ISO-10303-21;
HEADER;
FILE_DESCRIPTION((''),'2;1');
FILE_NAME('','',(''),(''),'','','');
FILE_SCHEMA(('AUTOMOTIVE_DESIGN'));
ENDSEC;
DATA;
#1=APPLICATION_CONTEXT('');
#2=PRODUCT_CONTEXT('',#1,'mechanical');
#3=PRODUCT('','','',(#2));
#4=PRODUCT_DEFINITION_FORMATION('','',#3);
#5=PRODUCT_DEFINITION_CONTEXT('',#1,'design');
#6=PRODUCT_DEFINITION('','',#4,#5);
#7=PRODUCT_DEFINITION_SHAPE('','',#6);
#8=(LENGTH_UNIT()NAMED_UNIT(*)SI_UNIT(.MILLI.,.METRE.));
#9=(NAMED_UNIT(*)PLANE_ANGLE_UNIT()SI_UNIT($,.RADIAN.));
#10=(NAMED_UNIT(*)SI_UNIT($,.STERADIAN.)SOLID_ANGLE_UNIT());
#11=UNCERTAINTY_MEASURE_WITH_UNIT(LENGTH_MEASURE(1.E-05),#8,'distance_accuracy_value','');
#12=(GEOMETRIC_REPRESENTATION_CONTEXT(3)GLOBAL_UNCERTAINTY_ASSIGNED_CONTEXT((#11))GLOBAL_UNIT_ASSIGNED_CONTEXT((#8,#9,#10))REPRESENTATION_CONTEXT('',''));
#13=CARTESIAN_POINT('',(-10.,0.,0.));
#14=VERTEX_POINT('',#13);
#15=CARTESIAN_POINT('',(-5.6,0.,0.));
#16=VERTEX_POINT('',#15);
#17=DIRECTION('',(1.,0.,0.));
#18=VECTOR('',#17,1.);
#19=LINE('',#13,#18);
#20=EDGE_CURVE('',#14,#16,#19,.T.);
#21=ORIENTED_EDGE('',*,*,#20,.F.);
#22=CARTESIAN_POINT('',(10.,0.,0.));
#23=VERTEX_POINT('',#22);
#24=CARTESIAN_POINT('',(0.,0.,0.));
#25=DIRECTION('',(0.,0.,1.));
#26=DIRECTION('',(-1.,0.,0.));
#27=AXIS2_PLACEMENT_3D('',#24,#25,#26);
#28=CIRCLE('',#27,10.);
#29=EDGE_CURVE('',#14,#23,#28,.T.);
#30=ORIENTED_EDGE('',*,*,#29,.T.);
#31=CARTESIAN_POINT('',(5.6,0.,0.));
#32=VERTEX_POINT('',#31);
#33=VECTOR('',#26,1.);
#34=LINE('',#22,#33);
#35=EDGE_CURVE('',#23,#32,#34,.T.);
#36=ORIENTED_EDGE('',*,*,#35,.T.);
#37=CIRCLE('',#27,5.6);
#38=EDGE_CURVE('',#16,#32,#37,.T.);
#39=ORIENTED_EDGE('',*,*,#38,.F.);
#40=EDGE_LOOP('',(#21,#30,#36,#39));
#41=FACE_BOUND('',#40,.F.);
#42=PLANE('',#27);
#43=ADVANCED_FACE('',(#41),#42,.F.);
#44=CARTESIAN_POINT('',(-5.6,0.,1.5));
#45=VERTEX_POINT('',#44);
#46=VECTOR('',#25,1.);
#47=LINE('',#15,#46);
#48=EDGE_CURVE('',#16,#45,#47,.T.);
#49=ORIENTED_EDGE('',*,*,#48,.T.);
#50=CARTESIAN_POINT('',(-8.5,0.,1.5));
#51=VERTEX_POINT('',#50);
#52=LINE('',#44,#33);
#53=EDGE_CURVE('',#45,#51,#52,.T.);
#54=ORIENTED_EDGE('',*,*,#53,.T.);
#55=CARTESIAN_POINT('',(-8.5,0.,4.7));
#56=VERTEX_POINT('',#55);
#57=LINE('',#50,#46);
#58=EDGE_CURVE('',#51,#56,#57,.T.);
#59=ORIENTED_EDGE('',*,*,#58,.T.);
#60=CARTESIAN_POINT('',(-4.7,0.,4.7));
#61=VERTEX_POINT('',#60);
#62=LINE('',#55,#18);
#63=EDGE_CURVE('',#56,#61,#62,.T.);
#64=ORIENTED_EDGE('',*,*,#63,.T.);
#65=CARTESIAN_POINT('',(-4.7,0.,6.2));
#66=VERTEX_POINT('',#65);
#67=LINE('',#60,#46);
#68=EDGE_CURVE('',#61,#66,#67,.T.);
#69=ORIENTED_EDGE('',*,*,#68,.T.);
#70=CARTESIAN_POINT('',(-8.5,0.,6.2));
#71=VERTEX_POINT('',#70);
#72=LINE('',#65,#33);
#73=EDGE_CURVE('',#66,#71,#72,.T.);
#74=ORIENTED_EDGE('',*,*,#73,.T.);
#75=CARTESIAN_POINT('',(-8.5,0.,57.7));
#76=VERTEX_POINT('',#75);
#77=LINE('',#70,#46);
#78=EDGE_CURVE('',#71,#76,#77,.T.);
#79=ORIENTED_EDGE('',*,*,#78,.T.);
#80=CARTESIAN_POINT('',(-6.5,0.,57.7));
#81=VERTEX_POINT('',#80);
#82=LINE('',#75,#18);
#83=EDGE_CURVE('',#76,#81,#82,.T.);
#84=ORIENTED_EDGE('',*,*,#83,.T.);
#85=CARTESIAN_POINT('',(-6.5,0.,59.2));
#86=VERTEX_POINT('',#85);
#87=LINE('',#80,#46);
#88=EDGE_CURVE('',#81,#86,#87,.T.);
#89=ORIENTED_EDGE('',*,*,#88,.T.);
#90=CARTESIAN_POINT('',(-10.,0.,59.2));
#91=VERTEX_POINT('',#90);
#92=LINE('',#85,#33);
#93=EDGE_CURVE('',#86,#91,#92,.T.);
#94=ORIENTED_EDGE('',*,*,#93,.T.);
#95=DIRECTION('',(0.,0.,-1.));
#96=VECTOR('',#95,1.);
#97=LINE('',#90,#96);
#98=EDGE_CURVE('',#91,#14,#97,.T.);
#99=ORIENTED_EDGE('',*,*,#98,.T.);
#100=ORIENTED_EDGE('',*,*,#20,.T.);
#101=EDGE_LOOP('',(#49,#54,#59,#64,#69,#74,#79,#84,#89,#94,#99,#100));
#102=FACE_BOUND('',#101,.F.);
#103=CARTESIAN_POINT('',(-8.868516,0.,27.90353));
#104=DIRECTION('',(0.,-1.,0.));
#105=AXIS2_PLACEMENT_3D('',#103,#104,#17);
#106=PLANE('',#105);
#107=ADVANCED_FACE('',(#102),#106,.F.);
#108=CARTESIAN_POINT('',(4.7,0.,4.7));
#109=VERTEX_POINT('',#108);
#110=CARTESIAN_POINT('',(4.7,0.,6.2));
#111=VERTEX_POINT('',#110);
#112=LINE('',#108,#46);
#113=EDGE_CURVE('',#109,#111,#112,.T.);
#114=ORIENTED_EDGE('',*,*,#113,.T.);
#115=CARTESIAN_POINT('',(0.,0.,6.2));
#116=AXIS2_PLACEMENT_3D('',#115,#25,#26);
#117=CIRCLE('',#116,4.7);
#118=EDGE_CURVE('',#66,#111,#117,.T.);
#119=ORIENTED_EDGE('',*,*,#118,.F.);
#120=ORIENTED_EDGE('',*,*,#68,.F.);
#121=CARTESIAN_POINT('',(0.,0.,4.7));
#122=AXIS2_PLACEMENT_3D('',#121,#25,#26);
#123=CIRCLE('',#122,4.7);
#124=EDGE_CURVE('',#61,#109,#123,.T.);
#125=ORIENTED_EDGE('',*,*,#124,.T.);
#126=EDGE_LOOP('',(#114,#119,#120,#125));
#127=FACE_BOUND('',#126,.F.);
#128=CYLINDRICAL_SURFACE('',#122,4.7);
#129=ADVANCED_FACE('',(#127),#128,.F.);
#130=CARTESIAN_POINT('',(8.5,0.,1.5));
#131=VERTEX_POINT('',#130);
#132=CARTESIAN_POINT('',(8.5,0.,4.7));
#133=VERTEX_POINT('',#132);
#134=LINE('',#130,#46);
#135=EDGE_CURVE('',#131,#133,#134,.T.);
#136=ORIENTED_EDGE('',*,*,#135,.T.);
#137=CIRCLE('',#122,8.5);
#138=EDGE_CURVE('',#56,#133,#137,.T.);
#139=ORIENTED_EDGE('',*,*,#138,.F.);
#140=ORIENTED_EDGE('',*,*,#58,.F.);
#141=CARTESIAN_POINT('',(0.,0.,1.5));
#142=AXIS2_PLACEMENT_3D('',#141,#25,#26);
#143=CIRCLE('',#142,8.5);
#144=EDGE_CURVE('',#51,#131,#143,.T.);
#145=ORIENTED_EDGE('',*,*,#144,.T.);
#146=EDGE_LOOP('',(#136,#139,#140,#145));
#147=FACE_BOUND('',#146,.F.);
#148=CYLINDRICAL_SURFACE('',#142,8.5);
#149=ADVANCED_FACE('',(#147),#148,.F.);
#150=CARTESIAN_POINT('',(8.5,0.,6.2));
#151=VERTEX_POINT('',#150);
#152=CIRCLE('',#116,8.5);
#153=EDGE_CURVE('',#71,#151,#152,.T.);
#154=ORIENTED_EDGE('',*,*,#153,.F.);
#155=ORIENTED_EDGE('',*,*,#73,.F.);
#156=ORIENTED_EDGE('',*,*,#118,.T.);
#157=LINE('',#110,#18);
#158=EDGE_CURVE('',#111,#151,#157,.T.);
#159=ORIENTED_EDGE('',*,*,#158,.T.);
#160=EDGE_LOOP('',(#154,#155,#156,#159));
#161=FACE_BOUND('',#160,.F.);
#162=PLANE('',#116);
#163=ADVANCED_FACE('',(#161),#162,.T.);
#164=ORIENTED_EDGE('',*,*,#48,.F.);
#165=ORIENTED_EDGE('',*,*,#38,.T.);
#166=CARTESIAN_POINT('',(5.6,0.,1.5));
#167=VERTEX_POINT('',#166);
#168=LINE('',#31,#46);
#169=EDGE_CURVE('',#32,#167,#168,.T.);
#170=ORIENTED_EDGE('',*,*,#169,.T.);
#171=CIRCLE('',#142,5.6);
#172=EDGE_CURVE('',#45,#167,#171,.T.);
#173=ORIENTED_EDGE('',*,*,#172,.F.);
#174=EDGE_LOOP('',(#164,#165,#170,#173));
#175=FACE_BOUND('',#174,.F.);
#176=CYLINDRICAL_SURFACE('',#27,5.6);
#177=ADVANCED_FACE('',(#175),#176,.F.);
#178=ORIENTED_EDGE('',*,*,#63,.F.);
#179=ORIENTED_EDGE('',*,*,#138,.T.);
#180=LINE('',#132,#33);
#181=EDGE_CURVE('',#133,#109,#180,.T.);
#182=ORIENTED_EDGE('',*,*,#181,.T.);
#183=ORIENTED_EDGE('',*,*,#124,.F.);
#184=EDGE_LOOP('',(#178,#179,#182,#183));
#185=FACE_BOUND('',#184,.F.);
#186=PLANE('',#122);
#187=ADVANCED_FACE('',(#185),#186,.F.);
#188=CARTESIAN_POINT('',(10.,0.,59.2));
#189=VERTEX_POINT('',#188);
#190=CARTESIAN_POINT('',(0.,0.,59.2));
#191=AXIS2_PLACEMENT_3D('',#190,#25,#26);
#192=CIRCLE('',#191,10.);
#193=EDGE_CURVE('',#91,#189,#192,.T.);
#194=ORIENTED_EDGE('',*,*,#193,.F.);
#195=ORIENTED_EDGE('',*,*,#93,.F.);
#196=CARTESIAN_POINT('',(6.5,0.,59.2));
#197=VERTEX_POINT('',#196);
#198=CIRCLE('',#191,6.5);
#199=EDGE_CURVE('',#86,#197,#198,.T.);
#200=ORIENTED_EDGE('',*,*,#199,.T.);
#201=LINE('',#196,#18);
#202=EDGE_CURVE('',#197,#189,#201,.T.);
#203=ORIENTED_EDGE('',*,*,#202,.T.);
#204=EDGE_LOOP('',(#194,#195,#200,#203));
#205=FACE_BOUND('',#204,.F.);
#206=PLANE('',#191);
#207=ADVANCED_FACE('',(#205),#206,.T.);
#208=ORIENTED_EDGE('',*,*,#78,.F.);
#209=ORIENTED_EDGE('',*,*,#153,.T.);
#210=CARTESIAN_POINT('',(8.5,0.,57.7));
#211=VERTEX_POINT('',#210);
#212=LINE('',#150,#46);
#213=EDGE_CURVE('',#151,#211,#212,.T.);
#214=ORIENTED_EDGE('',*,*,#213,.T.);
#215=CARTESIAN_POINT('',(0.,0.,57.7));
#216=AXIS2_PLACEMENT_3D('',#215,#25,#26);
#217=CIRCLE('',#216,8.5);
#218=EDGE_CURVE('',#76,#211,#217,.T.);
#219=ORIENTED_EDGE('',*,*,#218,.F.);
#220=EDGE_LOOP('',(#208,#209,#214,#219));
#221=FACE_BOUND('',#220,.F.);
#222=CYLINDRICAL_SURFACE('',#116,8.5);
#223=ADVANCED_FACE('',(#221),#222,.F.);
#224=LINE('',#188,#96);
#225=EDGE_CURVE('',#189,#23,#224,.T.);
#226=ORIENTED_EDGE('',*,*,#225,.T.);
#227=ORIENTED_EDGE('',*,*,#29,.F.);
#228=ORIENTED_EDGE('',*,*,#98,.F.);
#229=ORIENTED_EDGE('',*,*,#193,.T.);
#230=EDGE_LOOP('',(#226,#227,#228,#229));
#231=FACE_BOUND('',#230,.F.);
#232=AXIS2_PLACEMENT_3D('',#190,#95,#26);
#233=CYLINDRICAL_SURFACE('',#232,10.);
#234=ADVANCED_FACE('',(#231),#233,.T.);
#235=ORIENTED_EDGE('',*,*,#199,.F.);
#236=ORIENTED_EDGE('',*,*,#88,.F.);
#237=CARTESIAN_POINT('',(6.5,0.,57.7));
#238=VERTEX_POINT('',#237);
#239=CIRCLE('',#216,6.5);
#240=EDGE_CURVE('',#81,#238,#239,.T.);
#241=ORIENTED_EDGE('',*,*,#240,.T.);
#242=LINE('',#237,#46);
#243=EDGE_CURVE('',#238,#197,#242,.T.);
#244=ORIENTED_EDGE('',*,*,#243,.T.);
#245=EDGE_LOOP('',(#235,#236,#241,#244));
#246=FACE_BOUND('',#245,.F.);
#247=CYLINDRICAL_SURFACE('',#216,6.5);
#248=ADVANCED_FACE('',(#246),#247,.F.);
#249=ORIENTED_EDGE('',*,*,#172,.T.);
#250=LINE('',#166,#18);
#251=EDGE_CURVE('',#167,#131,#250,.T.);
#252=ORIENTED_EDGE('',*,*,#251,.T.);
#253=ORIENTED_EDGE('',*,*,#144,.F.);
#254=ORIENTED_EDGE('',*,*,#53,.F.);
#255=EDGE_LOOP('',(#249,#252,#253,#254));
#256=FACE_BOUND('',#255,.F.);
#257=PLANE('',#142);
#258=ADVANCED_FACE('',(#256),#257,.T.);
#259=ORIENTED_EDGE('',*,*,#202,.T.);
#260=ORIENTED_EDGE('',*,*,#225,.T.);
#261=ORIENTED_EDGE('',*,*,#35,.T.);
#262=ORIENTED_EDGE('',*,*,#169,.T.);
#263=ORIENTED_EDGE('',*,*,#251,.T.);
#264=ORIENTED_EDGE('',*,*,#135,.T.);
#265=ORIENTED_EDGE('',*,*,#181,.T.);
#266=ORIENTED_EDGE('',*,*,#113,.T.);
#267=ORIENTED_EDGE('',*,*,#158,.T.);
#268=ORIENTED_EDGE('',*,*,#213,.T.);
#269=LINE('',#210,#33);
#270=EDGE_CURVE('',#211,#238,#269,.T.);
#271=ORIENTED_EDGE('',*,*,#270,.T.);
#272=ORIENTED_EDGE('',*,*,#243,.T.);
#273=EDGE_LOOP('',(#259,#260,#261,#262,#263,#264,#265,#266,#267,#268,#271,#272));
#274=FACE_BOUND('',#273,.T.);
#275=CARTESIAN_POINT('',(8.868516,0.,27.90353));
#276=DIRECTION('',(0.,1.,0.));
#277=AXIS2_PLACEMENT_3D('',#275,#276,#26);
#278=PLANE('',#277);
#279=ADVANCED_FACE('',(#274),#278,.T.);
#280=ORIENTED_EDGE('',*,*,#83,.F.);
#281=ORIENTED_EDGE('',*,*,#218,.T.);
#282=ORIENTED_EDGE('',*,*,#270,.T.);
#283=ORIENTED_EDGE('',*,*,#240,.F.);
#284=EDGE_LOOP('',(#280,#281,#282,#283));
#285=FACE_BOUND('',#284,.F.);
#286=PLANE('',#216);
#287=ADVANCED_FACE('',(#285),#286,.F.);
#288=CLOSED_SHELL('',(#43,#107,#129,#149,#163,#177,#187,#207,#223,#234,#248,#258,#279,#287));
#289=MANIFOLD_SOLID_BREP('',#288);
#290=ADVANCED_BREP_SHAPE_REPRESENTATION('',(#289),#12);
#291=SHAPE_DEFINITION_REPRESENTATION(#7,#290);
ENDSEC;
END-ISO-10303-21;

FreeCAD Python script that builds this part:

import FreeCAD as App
import Part
import Sketcher

V = App.Vector
Q = App.Units.Quantity

doc = App.newDocument("Part")
body = doc.addObject("PartDesign::Body", "Body")

sketch1 = body.newObject("Sketcher::SketchObject", "Sketch")
sketch1.AttachmentSupport = (doc.getObject("XZ_Plane"), [""])
sketch1.MapMode = "FlatFace"
sketch1.addGeometry(Part.LineSegment(V(-6.5, 57.7, 0), V(-6.5, 59.2, 0)), False)
sketch1.addGeometry(Part.LineSegment(V(-6.5, 59.2, 0), V(-10, 59.2, 0)), False)
sketch1.addGeometry(Part.LineSegment(V(-10, 59.2, 0), V(-10, 0, 0)), False)
sketch1.addGeometry(Part.LineSegment(V(-10, 0, 0), V(-5.6, 0, 0)), False)
sketch1.addGeometry(Part.LineSegment(V(-5.6, 0, 0), V(-5.6, 1.5, 0)), False)
sketch1.addGeometry(Part.LineSegment(V(-5.6, 1.5, 0), V(-8.5, 1.5, 0)), False)
sketch1.addGeometry(Part.LineSegment(V(-8.5, 1.5, 0), V(-8.5, 4.7, 0)), False)
sketch1.addGeometry(Part.LineSegment(V(-8.5, 4.7, 0), V(-4.7, 4.7, 0)), False)
sketch1.addGeometry(Part.LineSegment(V(-4.7, 4.7, 0), V(-4.7, 6.2, 0)), False)
sketch1.addGeometry(Part.LineSegment(V(-4.7, 6.2, 0), V(-8.5, 6.2, 0)), False)
sketch1.addGeometry(Part.LineSegment(V(-8.5, 6.2, 0), V(-8.5, 57.7, 0)), False)
sketch1.addGeometry(Part.LineSegment(V(-8.5, 57.7, 0), V(-6.5, 57.7, 0)), False)
sketch1.addConstraint(Sketcher.Constraint("Coincident", 0, 2, 1, 1))
sketch1.addConstraint(Sketcher.Constraint("Coincident", 1, 2, 2, 1))
sketch1.addConstraint(Sketcher.Constraint("Coincident", 2, 2, 3, 1))
sketch1.addConstraint(Sketcher.Constraint("Coincident", 3, 2, 4, 1))
sketch1.addConstraint(Sketcher.Constraint("Coincident", 4, 2, 5, 1))
sketch1.addConstraint(Sketcher.Constraint("Coincident", 5, 2, 6, 1))
sketch1.addConstraint(Sketcher.Constraint("Coincident", 6, 2, 7, 1))
sketch1.addConstraint(Sketcher.Constraint("Coincident", 7, 2, 8, 1))
sketch1.addConstraint(Sketcher.Constraint("Coincident", 8, 2, 9, 1))
sketch1.addConstraint(Sketcher.Constraint("Coincident", 9, 2, 10, 1))
sketch1.addConstraint(Sketcher.Constraint("Coincident", 10, 2, 11, 1))
sketch1.addConstraint(Sketcher.Constraint("Coincident", 11, 2, 0, 1))
sketch1.addConstraint(Sketcher.Constraint("Vertical", 0))
sketch1.addConstraint(Sketcher.Constraint("Horizontal", 1))
sketch1.addConstraint(Sketcher.Constraint("Vertical", 2))
sketch1.addConstraint(Sketcher.Constraint("Horizontal", 3))
sketch1.addConstraint(Sketcher.Constraint("Vertical", 4))
sketch1.addConstraint(Sketcher.Constraint("Horizontal", 5))
sketch1.addConstraint(Sketcher.Constraint("Vertical", 6))
sketch1.addConstraint(Sketcher.Constraint("Horizontal", 7))
sketch1.addConstraint(Sketcher.Constraint("Vertical", 8))
sketch1.addConstraint(Sketcher.Constraint("Horizontal", 9))
sketch1.addConstraint(Sketcher.Constraint("Vertical", 10))
sketch1.addConstraint(Sketcher.Constraint("Horizontal", 11))
sketch1.addConstraint(Sketcher.Constraint("PointOnObject", 2, 2, -1))
sketch1.addConstraint(Sketcher.Constraint("Vertical", 6, 2, 9, 2))
sketch1.addConstraint(Sketcher.Constraint("Equal", 0, 4))
sketch1.addConstraint(Sketcher.Constraint("Equal", 4, 8))
sketch1.addConstraint(Sketcher.Constraint("DistanceX", 11, 1, 11, 2, Q("2 mm")))
sketch1.addConstraint(Sketcher.Constraint("DistanceX", 1, 2, 1, 1, Q("3.5 mm")))
sketch1.addConstraint(Sketcher.Constraint("DistanceX", 3, 1, 3, 2, Q("4.4 mm")))
sketch1.addConstraint(Sketcher.Constraint("DistanceX", 7, 1, 7, 2, Q("3.8 mm")))
sketch1.addConstraint(Sketcher.Constraint("DistanceY", 0, 1, 0, 2, Q("1.5 mm")))
sketch1.addConstraint(Sketcher.Constraint("DistanceY", 2, 2, 2, 1, Q("59.2 mm")))
sketch1.addConstraint(Sketcher.Constraint("DistanceY", 6, 1, 6, 2, Q("3.2 mm")))
sketch1.addConstraint(Sketcher.Constraint("DistanceX", 1, 2, -1, 1, Q("10 mm")))
revolution = body.newObject("PartDesign::Revolution", "Revolution")
revolution.Profile = sketch1
revolution.ReferenceAxis = (sketch1, ["V_Axis"])
revolution.Angle = 180

doc.recompute()
